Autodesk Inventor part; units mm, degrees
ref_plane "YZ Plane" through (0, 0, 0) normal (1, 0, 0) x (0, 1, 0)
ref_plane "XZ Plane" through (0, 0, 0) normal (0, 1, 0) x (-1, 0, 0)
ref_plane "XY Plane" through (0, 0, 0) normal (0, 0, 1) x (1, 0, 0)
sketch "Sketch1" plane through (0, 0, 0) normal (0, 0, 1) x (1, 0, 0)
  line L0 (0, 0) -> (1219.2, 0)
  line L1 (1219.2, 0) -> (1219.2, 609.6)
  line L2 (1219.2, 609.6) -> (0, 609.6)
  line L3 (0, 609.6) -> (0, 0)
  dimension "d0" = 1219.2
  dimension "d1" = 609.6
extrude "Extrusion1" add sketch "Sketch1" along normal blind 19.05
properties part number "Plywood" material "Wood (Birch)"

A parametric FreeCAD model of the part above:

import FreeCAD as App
import Part
import Sketcher
Q = App.Units.Quantity


def add_polygon(sketch, points):
    """Adds a closed chain of lines whose ends are joined by coincident constraints."""
    first, n = sketch.GeometryCount, len(points)
    for a, b in zip(points, points[1:] + points[:1]):
        sketch.addGeometry(Part.LineSegment(App.Vector(*a, 0), App.Vector(*b, 0)), False)
    for i in range(n):
        sketch.addConstraint(Sketcher.Constraint("Coincident", first + i, 2, first + (i + 1) % n, 1))

doc = App.newDocument("Part")
body = doc.addObject("PartDesign::Body", "Body")

# Sketch on XY plane
sketch1 = body.newObject("Sketcher::SketchObject", "Sketch")
sketch1.AttachmentSupport = (doc.getObject("XY_Plane"), [""])
sketch1.MapMode = "FlatFace"
add_polygon(sketch1, [(0, 610), (0, 0), (1219, 0), (1219, 610)])  # lines 0-3
sketch1.addConstraint(Sketcher.Constraint("Vertical", 0))
sketch1.addConstraint(Sketcher.Constraint("Horizontal", 1))
sketch1.addConstraint(Sketcher.Constraint("Vertical", 2))
sketch1.addConstraint(Sketcher.Constraint("Horizontal", 3))
sketch1.addConstraint(Sketcher.Constraint("Coincident", 0, 2, -1, 1))
sketch1.addConstraint(Sketcher.Constraint("DistanceX", 1, 1, 1, 2, Q("48 in")))
sketch1.addConstraint(Sketcher.Constraint("DistanceY", 0, 2, 0, 1, Q("24 in")))
pad1 = body.newObject("PartDesign::Pad", "Pad")
pad1.Profile = sketch1
pad1.Length = Q("0.75 in")

doc.recompute()
